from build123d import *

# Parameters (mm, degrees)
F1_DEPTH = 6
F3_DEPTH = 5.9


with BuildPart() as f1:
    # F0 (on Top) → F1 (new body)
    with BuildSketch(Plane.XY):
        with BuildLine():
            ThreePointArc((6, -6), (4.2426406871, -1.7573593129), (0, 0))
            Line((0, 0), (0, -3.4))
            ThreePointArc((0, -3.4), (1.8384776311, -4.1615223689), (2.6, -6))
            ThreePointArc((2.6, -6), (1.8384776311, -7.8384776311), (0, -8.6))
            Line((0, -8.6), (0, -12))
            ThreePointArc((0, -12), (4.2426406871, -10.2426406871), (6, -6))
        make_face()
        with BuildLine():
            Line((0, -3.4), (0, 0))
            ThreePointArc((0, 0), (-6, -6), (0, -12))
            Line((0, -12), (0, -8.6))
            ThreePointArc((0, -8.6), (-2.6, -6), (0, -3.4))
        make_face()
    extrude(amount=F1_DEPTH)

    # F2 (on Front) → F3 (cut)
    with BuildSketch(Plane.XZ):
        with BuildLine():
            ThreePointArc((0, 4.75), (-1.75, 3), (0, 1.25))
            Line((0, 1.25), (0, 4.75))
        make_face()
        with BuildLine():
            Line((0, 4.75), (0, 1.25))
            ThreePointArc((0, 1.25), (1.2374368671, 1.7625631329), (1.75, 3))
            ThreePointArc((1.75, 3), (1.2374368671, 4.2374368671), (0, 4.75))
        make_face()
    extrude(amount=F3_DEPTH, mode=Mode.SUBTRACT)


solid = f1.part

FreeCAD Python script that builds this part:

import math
import FreeCAD as App
import Part
import Sketcher

doc = App.newDocument("Part")
body = doc.addObject("PartDesign::Body", "Body")

sketch1 = body.newObject("Sketcher::SketchObject", "Sketch")
sketch1.AttachmentSupport = (doc.getObject("XY_Plane"), [""])
sketch1.MapMode = "FlatFace"
sketch1.addGeometry([
    Part.ArcOfCircle(Part.Circle(App.Vector(0, -6, 0), App.Vector(0, 0, 1), 6), math.radians(0), math.radians(90)),
    Part.ArcOfCircle(Part.Circle(App.Vector(0, -6, 0), App.Vector(0, 0, 1), 6), math.radians(90), math.radians(270)),
    Part.ArcOfCircle(Part.Circle(App.Vector(0, -6, 0), App.Vector(0, 0, 1), 6), math.radians(-90), math.radians(0)),
    Part.ArcOfCircle(Part.Circle(App.Vector(0, -6, 0), App.Vector(0, 0, 1), 2.6), math.radians(0), math.radians(90)),
    Part.ArcOfCircle(Part.Circle(App.Vector(0, -6, 0), App.Vector(0, 0, 1), 2.6), math.radians(-90), math.radians(0)),
    Part.ArcOfCircle(Part.Circle(App.Vector(0, -6, 0), App.Vector(0, 0, 1), 2.6), math.radians(90), math.radians(270)),
], False)
sketch1.addConstraint([
    Sketcher.Constraint("Tangent", 0, 2, 1, 1),
    Sketcher.Constraint("Tangent", 1, 2, 2, 1),
    Sketcher.Constraint("Tangent", 2, 2, 0, 1),
    Sketcher.Constraint("Tangent", 3, 1, 4, 2),
    Sketcher.Constraint("Tangent", 4, 1, 5, 2),
    Sketcher.Constraint("Tangent", 5, 1, 3, 2),
    Sketcher.Constraint("Coincident", 0, 2, -1, 1),
    Sketcher.Constraint("Coincident", 3, 3, 0, 3),
    Sketcher.Constraint("PointOnObject", 0, 3, -2),
    Sketcher.Constraint("PointOnObject", 1, 2, -2),
    Sketcher.Constraint("PointOnObject", 4, 1, -2),
    Sketcher.Constraint("PointOnObject", 5, 1, -2),
    Sketcher.Constraint("Horizontal", 5, 3, 2, 2),
    Sketcher.Constraint("Horizontal", 2, 2, 3, 1),
    Sketcher.Constraint("Radius", 0, 6.0),
    Sketcher.Constraint("Radius", 3, 2.6),
])
pad1 = body.newObject("PartDesign::Pad", "Pad")
pad1.Profile = sketch1
pad1.Length = 6

sketch2 = body.newObject("Sketcher::SketchObject", "Sketch001")
sketch2.AttachmentSupport = (doc.getObject("XZ_Plane"), [""])
sketch2.MapMode = "FlatFace"
sketch2.addGeometry([
    Part.ArcOfCircle(Part.Circle(App.Vector(0, 3, 0), App.Vector(0, 0, 1), 1.8), math.radians(90), math.radians(270)),
    Part.ArcOfCircle(Part.Circle(App.Vector(0, 3, 0), App.Vector(0, 0, 1), 1.8), math.radians(-90), math.radians(0)),
    Part.ArcOfCircle(Part.Circle(App.Vector(0, 3, 0), App.Vector(0, 0, 1), 1.8), math.radians(0), math.radians(90)),
], False)
sketch2.addConstraint([
    Sketcher.Constraint("Tangent", 0, 2, 1, 1),
    Sketcher.Constraint("Tangent", 1, 2, 2, 1),
    Sketcher.Constraint("Tangent", 2, 2, 0, 1),
    Sketcher.Constraint("PointOnObject", 0, 3, -2),
    Sketcher.Constraint("PointOnObject", 0, 2, -2),
    Sketcher.Constraint("PointOnObject", 2, 2, -2),
    Sketcher.Constraint("Horizontal", 2, 3, 1, 2),
    Sketcher.Constraint("Radius", 0, 1.75),
    Sketcher.Constraint("DistanceY", -1, 1, 0, 3, 3.0),
])
pocket1 = body.newObject("PartDesign::Pocket", "Pocket")
pocket1.Profile = sketch2
pocket1.Length = 5.9
pocket1.Reversed = True

doc.recompute()
